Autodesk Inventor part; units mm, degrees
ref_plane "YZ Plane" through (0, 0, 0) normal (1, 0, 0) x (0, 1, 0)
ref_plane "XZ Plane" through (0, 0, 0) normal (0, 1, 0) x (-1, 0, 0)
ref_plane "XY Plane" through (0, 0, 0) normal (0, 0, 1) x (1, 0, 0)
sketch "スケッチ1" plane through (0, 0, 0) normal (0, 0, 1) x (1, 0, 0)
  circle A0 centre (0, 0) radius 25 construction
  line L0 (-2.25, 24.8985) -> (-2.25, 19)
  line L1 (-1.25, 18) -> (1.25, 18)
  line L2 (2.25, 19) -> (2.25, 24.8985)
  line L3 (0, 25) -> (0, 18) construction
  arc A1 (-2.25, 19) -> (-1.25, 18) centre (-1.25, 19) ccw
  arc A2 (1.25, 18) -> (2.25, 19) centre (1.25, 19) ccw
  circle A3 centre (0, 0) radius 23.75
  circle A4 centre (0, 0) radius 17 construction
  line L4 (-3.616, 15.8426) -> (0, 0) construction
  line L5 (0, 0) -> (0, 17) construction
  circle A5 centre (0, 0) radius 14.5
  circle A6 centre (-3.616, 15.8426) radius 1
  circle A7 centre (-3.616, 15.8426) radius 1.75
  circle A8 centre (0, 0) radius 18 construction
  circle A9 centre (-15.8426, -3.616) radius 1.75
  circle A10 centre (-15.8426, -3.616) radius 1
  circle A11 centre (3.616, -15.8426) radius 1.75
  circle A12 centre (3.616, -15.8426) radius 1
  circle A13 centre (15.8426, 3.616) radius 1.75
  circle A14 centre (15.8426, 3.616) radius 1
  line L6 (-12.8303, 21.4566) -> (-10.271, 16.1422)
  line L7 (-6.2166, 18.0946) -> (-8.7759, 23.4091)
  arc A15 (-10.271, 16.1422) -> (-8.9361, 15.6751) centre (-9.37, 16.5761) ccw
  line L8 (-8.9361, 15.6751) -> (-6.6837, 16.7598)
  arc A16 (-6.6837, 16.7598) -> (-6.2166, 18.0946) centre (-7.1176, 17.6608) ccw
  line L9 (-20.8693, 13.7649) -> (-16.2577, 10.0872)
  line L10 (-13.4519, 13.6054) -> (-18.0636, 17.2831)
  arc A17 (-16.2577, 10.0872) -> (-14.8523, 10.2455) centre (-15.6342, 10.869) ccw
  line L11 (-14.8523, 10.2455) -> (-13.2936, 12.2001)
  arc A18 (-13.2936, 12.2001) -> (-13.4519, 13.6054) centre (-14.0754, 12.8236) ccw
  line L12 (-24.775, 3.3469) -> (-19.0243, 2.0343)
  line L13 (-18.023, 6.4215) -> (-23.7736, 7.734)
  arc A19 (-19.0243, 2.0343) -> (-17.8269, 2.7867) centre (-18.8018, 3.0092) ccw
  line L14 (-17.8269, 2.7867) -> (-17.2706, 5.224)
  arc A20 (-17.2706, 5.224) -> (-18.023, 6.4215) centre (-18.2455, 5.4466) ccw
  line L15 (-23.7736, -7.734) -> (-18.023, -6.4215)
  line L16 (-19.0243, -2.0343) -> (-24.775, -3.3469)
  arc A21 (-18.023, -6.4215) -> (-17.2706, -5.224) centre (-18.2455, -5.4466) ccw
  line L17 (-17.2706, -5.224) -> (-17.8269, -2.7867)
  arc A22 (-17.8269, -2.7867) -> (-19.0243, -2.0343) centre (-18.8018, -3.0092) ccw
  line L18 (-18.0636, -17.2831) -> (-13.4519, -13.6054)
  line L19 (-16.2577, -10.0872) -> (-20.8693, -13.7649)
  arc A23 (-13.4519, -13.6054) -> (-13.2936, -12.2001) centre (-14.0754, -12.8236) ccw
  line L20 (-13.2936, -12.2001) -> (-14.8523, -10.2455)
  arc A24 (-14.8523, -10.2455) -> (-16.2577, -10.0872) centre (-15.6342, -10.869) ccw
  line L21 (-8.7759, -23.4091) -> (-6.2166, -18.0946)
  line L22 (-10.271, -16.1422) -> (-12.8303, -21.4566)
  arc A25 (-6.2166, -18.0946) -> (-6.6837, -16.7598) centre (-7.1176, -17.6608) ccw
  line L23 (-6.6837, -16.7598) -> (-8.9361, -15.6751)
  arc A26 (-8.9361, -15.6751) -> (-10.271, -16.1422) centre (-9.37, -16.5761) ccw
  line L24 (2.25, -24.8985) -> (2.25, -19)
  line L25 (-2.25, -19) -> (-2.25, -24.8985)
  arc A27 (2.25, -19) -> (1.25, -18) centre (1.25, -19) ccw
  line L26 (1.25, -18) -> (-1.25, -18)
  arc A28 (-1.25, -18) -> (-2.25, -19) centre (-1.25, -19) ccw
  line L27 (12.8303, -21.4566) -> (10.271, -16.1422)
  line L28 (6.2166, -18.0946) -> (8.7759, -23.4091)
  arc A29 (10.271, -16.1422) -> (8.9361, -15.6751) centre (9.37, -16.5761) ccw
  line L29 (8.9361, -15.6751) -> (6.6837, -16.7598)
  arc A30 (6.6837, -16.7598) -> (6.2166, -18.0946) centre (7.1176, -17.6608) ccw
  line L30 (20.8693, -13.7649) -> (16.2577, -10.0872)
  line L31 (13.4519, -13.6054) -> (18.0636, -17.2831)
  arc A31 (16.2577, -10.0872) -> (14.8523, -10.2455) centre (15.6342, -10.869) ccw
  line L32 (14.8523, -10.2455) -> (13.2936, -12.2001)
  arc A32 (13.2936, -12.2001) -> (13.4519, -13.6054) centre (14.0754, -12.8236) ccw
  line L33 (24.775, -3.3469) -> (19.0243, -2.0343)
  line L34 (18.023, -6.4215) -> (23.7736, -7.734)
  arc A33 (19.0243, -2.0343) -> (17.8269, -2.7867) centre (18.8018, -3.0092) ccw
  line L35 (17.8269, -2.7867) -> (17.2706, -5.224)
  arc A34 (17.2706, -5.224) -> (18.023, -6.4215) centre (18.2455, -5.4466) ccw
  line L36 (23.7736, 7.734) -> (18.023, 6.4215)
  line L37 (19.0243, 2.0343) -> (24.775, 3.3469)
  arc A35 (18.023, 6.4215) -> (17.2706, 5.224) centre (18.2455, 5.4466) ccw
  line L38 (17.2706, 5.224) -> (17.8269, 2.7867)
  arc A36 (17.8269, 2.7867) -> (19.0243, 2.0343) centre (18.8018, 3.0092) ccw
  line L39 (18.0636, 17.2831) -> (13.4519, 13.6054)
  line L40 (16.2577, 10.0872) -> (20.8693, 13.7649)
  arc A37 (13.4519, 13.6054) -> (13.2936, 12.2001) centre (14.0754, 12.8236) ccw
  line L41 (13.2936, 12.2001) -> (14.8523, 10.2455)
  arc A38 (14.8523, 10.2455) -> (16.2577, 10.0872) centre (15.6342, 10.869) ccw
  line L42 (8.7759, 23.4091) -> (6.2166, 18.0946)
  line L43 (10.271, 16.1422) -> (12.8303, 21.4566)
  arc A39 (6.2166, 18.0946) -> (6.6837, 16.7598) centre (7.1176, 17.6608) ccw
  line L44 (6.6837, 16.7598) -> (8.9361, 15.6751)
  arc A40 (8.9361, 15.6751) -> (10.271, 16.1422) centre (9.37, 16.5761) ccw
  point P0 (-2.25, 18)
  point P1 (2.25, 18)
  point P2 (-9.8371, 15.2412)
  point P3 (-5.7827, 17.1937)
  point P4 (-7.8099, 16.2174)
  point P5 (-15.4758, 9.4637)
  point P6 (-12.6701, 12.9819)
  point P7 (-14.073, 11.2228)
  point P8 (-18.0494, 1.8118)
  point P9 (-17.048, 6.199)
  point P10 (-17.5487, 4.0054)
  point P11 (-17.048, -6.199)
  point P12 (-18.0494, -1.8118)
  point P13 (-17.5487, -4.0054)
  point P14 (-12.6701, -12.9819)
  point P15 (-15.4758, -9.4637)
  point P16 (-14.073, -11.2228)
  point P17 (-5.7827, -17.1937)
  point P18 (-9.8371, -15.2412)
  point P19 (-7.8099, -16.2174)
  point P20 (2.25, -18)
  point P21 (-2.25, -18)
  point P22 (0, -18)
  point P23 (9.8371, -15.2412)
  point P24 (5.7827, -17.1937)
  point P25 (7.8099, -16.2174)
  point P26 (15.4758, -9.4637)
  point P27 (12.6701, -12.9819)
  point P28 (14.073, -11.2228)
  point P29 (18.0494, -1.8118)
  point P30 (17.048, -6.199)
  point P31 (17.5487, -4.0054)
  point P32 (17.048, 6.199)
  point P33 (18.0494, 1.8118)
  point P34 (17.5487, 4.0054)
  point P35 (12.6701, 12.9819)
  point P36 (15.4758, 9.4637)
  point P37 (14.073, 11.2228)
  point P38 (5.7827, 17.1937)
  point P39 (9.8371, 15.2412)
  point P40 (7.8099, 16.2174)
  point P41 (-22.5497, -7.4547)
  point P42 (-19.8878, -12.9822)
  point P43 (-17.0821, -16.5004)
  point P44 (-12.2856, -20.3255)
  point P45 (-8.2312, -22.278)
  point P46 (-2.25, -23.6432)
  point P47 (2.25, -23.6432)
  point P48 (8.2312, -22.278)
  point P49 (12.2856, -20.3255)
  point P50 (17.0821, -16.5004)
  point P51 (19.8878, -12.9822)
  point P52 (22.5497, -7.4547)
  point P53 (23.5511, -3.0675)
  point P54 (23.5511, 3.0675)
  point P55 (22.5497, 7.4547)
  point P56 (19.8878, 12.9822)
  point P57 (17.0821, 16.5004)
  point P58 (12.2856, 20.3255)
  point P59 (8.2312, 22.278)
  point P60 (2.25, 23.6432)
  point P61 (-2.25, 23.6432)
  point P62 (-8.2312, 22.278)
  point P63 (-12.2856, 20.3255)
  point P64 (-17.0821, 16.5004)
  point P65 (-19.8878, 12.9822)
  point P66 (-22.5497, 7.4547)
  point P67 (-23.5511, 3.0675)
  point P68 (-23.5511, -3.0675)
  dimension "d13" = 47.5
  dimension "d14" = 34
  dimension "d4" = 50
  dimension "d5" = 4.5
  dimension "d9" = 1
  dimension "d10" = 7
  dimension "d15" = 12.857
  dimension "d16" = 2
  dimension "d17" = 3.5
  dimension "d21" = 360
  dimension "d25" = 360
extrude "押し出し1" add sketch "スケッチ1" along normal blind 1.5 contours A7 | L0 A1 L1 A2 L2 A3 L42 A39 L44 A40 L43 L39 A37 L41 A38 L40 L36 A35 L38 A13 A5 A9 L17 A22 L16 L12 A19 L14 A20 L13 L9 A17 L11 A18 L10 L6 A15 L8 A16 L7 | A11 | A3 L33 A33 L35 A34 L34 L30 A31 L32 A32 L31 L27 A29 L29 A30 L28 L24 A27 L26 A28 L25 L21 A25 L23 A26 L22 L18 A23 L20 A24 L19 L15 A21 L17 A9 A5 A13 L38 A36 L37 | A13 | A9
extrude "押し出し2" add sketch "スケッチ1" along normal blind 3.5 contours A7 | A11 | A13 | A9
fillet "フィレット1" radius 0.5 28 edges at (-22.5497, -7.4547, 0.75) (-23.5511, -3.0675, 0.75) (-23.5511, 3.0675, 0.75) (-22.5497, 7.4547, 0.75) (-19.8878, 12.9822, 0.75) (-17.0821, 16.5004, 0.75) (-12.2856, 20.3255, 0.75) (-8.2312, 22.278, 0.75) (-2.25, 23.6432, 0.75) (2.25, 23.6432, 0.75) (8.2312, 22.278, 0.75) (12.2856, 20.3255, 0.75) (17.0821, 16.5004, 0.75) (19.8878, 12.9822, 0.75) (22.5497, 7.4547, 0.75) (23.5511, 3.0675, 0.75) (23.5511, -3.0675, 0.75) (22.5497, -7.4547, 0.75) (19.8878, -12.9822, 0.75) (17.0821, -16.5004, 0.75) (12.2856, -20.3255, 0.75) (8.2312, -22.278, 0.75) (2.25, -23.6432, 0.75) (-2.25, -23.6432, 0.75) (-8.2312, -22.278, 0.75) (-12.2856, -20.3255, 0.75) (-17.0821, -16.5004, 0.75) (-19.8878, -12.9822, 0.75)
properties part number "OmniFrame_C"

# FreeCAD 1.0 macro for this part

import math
import FreeCAD as App
import Part
import Sketcher
Q = App.Units.Quantity


def edges_at(feature, points):
    """Names of the edges that pass closest to the given points."""
    edges = feature.Shape.Edges
    near = lambda p: min(range(len(edges)), key=lambda i: edges[i].distToShape(Part.Vertex(*p))[0])
    return sorted({f"Edge{near(p) + 1}" for p in points})

doc = App.newDocument("Part")
body = doc.addObject("PartDesign::Body", "Body")

sketch1 = doc.addObject("Sketcher::SketchObject", "Sketch")
body.addObject(sketch1)
sketch1.AttachmentSupport = (doc.XY_Plane, [""])
sketch1.MapMode = "FlatFace"
sketch1.addGeometry([
    Part.LineSegment(App.Vector(-2.2, 19, 0), App.Vector(-2.2, 23.6, 0)),
    Part.ArcOfCircle(Part.Circle(App.Vector(0, 0, 0), App.Vector(0, 0, 1), 23.8), math.radians(95.44), math.radians(110.28)),
    Part.LineSegment(App.Vector(-8.2, 22.3, 0), App.Vector(-6.2, 18.1, 0)),
    Part.ArcOfCircle(Part.Circle(App.Vector(-7.1, 17.7, 0), App.Vector(0, 0, 1), 1), math.radians(-64), math.radians(26)),
    Part.LineSegment(App.Vector(-6.7, 16.8, 0), App.Vector(-8.9, 15.7, 0)),
    Part.ArcOfCircle(Part.Circle(App.Vector(-9.4, 16.6, 0), App.Vector(0, 0, 1), 1), math.radians(-154), math.radians(-64)),
    Part.LineSegment(App.Vector(-10.3, 16.1, 0), App.Vector(-12.3, 20.3, 0)),
    Part.ArcOfCircle(Part.Circle(App.Vector(0, 0, 0), App.Vector(0, 0, 1), 23.8), math.radians(121.15), math.radians(135.99)),
    Part.LineSegment(App.Vector(-17.1, 16.5, 0), App.Vector(-13.5, 13.6, 0)),
    Part.ArcOfCircle(Part.Circle(App.Vector(-14.1, 12.8, 0), App.Vector(0, 0, 1), 1), math.radians(-39), math.radians(51)),
    Part.LineSegment(App.Vector(-13.3, 12.2, 0), App.Vector(-14.9, 10.2, 0)),
    Part.ArcOfCircle(Part.Circle(App.Vector(-15.6, 10.9, 0), App.Vector(0, 0, 1), 1), math.radians(-129), math.radians(-39)),
    Part.LineSegment(App.Vector(-16.3, 10.1, 0), App.Vector(-19.9, 13, 0)),
    Part.ArcOfCircle(Part.Circle(App.Vector(0, 0, 0), App.Vector(0, 0, 1), 23.8), math.radians(146.86), math.radians(161.71)),
    Part.LineSegment(App.Vector(-22.5, 7.5, 0), App.Vector(-18, 6.4, 0)),
    Part.ArcOfCircle(Part.Circle(App.Vector(-18.2, 5.4, 0), App.Vector(0, 0, 1), 1), math.radians(-13), math.radians(77)),
    Part.LineSegment(App.Vector(-17.3, 5.2, 0), App.Vector(-17.8, 2.8, 0)),
    Part.ArcOfCircle(Part.Circle(App.Vector(-18.8, 3, 0), App.Vector(0, 0, 1), 1), math.radians(-103), math.radians(-13)),
    Part.LineSegment(App.Vector(-19, 2, 0), App.Vector(-23.6, 3.1, 0)),
    Part.ArcOfCircle(Part.Circle(App.Vector(0, 0, 0), App.Vector(0, 0, 1), 23.8), math.radians(172.58), math.radians(187.42)),
    Part.LineSegment(App.Vector(-23.6, -3.1, 0), App.Vector(-19, -2, 0)),
    Part.ArcOfCircle(Part.Circle(App.Vector(-18.8, -3, 0), App.Vector(0, 0, 1), 1), math.radians(13), math.radians(103)),
    Part.LineSegment(App.Vector(-17.8, -2.8, 0), App.Vector(-17.3, -5.2, 0)),
    Part.ArcOfCircle(Part.Circle(App.Vector(-18.2, -5.4, 0), App.Vector(0, 0, 1), 1), math.radians(-77), math.radians(13)),
    Part.LineSegment(App.Vector(-18, -6.4, 0), App.Vector(-22.5, -7.5, 0)),
    Part.ArcOfCircle(Part.Circle(App.Vector(0, 0, 0), App.Vector(0, 0, 1), 23.8), math.radians(-161.71), math.radians(-146.86)),
    Part.LineSegment(App.Vector(-19.9, -13, 0), App.Vector(-16.3, -10.1, 0)),
    Part.ArcOfCircle(Part.Circle(App.Vector(-15.6, -10.9, 0), App.Vector(0, 0, 1), 1), math.radians(39), math.radians(129)),
    Part.LineSegment(App.Vector(-14.9, -10.2, 0), App.Vector(-13.3, -12.2, 0)),
    Part.ArcOfCircle(Part.Circle(App.Vector(-14.1, -12.8, 0), App.Vector(0, 0, 1), 1), math.radians(-51), math.radians(39)),
    Part.LineSegment(App.Vector(-13.5, -13.6, 0), App.Vector(-17.1, -16.5, 0)),
    Part.ArcOfCircle(Part.Circle(App.Vector(0, 0, 0), App.Vector(0, 0, 1), 23.8), math.radians(-135.99), math.radians(-121.15)),
    Part.LineSegment(App.Vector(-12.3, -20.3, 0), App.Vector(-10.3, -16.1, 0)),
    Part.ArcOfCircle(Part.Circle(App.Vector(-9.4, -16.6, 0), App.Vector(0, 0, 1), 1), math.radians(64), math.radians(154)),
    Part.LineSegment(App.Vector(-8.9, -15.7, 0), App.Vector(-6.7, -16.8, 0)),
    Part.ArcOfCircle(Part.Circle(App.Vector(-7.1, -17.7, 0), App.Vector(0, 0, 1), 1), math.radians(-26), math.radians(64)),
    Part.LineSegment(App.Vector(-6.2, -18.1, 0), App.Vector(-8.2, -22.3, 0)),
    Part.ArcOfCircle(Part.Circle(App.Vector(0, 0, 0), App.Vector(0, 0, 1), 23.8), math.radians(-110.28), math.radians(-95.44)),
    Part.LineSegment(App.Vector(-2.2, -23.6, 0), App.Vector(-2.2, -19, 0)),
    Part.ArcOfCircle(Part.Circle(App.Vector(-1.2, -19, 0), App.Vector(0, 0, 1), 1), math.radians(90), math.radians(180)),
    Part.LineSegment(App.Vector(-1.2, -18, 0), App.Vector(1.2, -18, 0)),
    Part.ArcOfCircle(Part.Circle(App.Vector(1.2, -19, 0), App.Vector(0, 0, 1), 1), math.radians(0), math.radians(90)),
    Part.LineSegment(App.Vector(2.2, -19, 0), App.Vector(2.2, -23.6, 0)),
    Part.ArcOfCircle(Part.Circle(App.Vector(0, 0, 0), App.Vector(0, 0, 1), 23.8), math.radians(-84.56), math.radians(-69.72)),
    Part.LineSegment(App.Vector(8.2, -22.3, 0), App.Vector(6.2, -18.1, 0)),
    Part.ArcOfCircle(Part.Circle(App.Vector(7.1, -17.7, 0), App.Vector(0, 0, 1), 1), math.radians(116), math.radians(206)),
    Part.LineSegment(App.Vector(6.7, -16.8, 0), App.Vector(8.9, -15.7, 0)),
    Part.ArcOfCircle(Part.Circle(App.Vector(9.4, -16.6, 0), App.Vector(0, 0, 1), 1), math.radians(26), math.radians(116)),
    Part.LineSegment(App.Vector(10.3, -16.1, 0), App.Vector(12.3, -20.3, 0)),
    Part.ArcOfCircle(Part.Circle(App.Vector(0, 0, 0), App.Vector(0, 0, 1), 23.8), math.radians(-58.85), math.radians(-44.01)),
    Part.LineSegment(App.Vector(17.1, -16.5, 0), App.Vector(13.5, -13.6, 0)),
    Part.ArcOfCircle(Part.Circle(App.Vector(14.1, -12.8, 0), App.Vector(0, 0, 1), 1), math.radians(141), math.radians(231)),
    Part.LineSegment(App.Vector(13.3, -12.2, 0), App.Vector(14.9, -10.2, 0)),
    Part.ArcOfCircle(Part.Circle(App.Vector(15.6, -10.9, 0), App.Vector(0, 0, 1), 1), math.radians(51), math.radians(141)),
    Part.LineSegment(App.Vector(16.3, -10.1, 0), App.Vector(19.9, -13, 0)),
    Part.ArcOfCircle(Part.Circle(App.Vector(0, 0, 0), App.Vector(0, 0, 1), 23.8), math.radians(-33.14), math.radians(-18.29)),
    Part.LineSegment(App.Vector(22.5, -7.5, 0), App.Vector(18, -6.4, 0)),
    Part.ArcOfCircle(Part.Circle(App.Vector(18.2, -5.4, 0), App.Vector(0, 0, 1), 1), math.radians(167), math.radians(257)),
    Part.LineSegment(App.Vector(17.3, -5.2, 0), App.Vector(17.8, -2.8, 0)),
    Part.ArcOfCircle(Part.Circle(App.Vector(18.8, -3, 0), App.Vector(0, 0, 1), 1), math.radians(77), math.radians(167)),
    Part.LineSegment(App.Vector(19, -2, 0), App.Vector(23.6, -3.1, 0)),
    Part.ArcOfCircle(Part.Circle(App.Vector(0, 0, 0), App.Vector(0, 0, 1), 23.8), math.radians(-7.42), math.radians(7.42)),
    Part.LineSegment(App.Vector(23.6, 3.1, 0), App.Vector(19, 2, 0)),
    Part.ArcOfCircle(Part.Circle(App.Vector(18.8, 3, 0), App.Vector(0, 0, 1), 1), math.radians(-167), math.radians(-77)),
    Part.LineSegment(App.Vector(17.8, 2.8, 0), App.Vector(17.3, 5.2, 0)),
    Part.ArcOfCircle(Part.Circle(App.Vector(18.2, 5.4, 0), App.Vector(0, 0, 1), 1), math.radians(103), math.radians(193)),
    Part.LineSegment(App.Vector(18, 6.4, 0), App.Vector(22.5, 7.5, 0)),
    Part.ArcOfCircle(Part.Circle(App.Vector(0, 0, 0), App.Vector(0, 0, 1), 23.8), math.radians(18.29), math.radians(33.14)),
    Part.LineSegment(App.Vector(19.9, 13, 0), App.Vector(16.3, 10.1, 0)),
    Part.ArcOfCircle(Part.Circle(App.Vector(15.6, 10.9, 0), App.Vector(0, 0, 1), 1), math.radians(-141), math.radians(-51)),
    Part.LineSegment(App.Vector(14.9, 10.2, 0), App.Vector(13.3, 12.2, 0)),
    Part.ArcOfCircle(Part.Circle(App.Vector(14.1, 12.8, 0), App.Vector(0, 0, 1), 1), math.radians(129), math.radians(219)),
    Part.LineSegment(App.Vector(13.5, 13.6, 0), App.Vector(17.1, 16.5, 0)),
    Part.ArcOfCircle(Part.Circle(App.Vector(0, 0, 0), App.Vector(0, 0, 1), 23.8), math.radians(44.01), math.radians(58.85)),
    Part.LineSegment(App.Vector(12.3, 20.3, 0), App.Vector(10.3, 16.1, 0)),
    Part.ArcOfCircle(Part.Circle(App.Vector(9.4, 16.6, 0), App.Vector(0, 0, 1), 1), math.radians(-116), math.radians(-26)),
    Part.LineSegment(App.Vector(8.9, 15.7, 0), App.Vector(6.7, 16.8, 0)),
    Part.ArcOfCircle(Part.Circle(App.Vector(7.1, 17.7, 0), App.Vector(0, 0, 1), 1), math.radians(154), math.radians(244)),
    Part.LineSegment(App.Vector(6.2, 18.1, 0), App.Vector(8.2, 22.3, 0)),
    Part.ArcOfCircle(Part.Circle(App.Vector(0, 0, 0), App.Vector(0, 0, 1), 23.8), math.radians(69.72), math.radians(84.56)),
    Part.LineSegment(App.Vector(2.2, 23.6, 0), App.Vector(2.2, 19, 0)),
    Part.ArcOfCircle(Part.Circle(App.Vector(1.2, 19, 0), App.Vector(0, 0, 1), 1), math.radians(-90), math.radians(0)),
    Part.LineSegment(App.Vector(1.2, 18, 0), App.Vector(-1.2, 18, 0)),
    Part.ArcOfCircle(Part.Circle(App.Vector(-1.2, 19, 0), App.Vector(0, 0, 1), 1), math.radians(180), math.radians(270)),
    Part.Circle(App.Vector(-3.6, 15.8, 0), App.Vector(0, 0, 1), 1),
    Part.Circle(App.Vector(0, 0, 0), App.Vector(0, 0, 1), 14.5),
    Part.Circle(App.Vector(15.8, 3.6, 0), App.Vector(0, 0, 1), 1),
    Part.Circle(App.Vector(-15.8, -3.6, 0), App.Vector(0, 0, 1), 1),
    Part.Circle(App.Vector(3.6, -15.8, 0), App.Vector(0, 0, 1), 1),
], False)
sketch1.addConstraint([
    Sketcher.Constraint("Coincident", 0, 2, 1, 1),
    Sketcher.Constraint("Coincident", 1, 2, 2, 1),
    Sketcher.Constraint("Tangent", 2, 2, 3, 2),
    Sketcher.Constraint("Tangent", 3, 1, 4, 1),
    Sketcher.Constraint("Tangent", 4, 2, 5, 2),
    Sketcher.Constraint("Tangent", 5, 1, 6, 1),
    Sketcher.Constraint("Coincident", 6, 2, 7, 1),
    Sketcher.Constraint("Coincident", 7, 2, 8, 1),
    Sketcher.Constraint("Tangent", 8, 2, 9, 2),
    Sketcher.Constraint("Tangent", 9, 1, 10, 1),
    Sketcher.Constraint("Tangent", 10, 2, 11, 2),
    Sketcher.Constraint("Tangent", 11, 1, 12, 1),
    Sketcher.Constraint("Coincident", 12, 2, 13, 1),
    Sketcher.Constraint("Coincident", 13, 2, 14, 1),
    Sketcher.Constraint("Tangent", 14, 2, 15, 2),
    Sketcher.Constraint("Tangent", 15, 1, 16, 1),
    Sketcher.Constraint("Tangent", 16, 2, 17, 2),
    Sketcher.Constraint("Tangent", 17, 1, 18, 1),
    Sketcher.Constraint("Coincident", 18, 2, 19, 1),
    Sketcher.Constraint("Coincident", 19, 2, 20, 1),
    Sketcher.Constraint("Tangent", 20, 2, 21, 2),
    Sketcher.Constraint("Tangent", 21, 1, 22, 1),
    Sketcher.Constraint("Tangent", 22, 2, 23, 2),
    Sketcher.Constraint("Tangent", 23, 1, 24, 1),
    Sketcher.Constraint("Coincident", 24, 2, 25, 1),
    Sketcher.Constraint("Coincident", 25, 2, 26, 1),
    Sketcher.Constraint("Tangent", 26, 2, 27, 2),
    Sketcher.Constraint("Tangent", 27, 1, 28, 1),
    Sketcher.Constraint("Tangent", 28, 2, 29, 2),
    Sketcher.Constraint("Tangent", 29, 1, 30, 1),
    Sketcher.Constraint("Coincident", 30, 2, 31, 1),
    Sketcher.Constraint("Coincident", 31, 2, 32, 1),
    Sketcher.Constraint("Tangent", 32, 2, 33, 2),
    Sketcher.Constraint("Tangent", 33, 1, 34, 1),
    Sketcher.Constraint("Tangent", 34, 2, 35, 2),
    Sketcher.Constraint("Tangent", 35, 1, 36, 1),
    Sketcher.Constraint("Coincident", 36, 2, 37, 1),
    Sketcher.Constraint("Coincident", 37, 2, 38, 1),
    Sketcher.Constraint("Tangent", 38, 2, 39, 2),
    Sketcher.Constraint("Tangent", 39, 1, 40, 1),
    Sketcher.Constraint("Tangent", 40, 2, 41, 2),
    Sketcher.Constraint("Tangent", 41, 1, 42, 1),
    Sketcher.Constraint("Coincident", 42, 2, 43, 1),
    Sketcher.Constraint("Coincident", 43, 2, 44, 1),
    Sketcher.Constraint("Tangent", 44, 2, 45, 2),
    Sketcher.Constraint("Tangent", 45, 1, 46, 1),
    Sketcher.Constraint("Tangent", 46, 2, 47, 2),
    Sketcher.Constraint("Tangent", 47, 1, 48, 1),
    Sketcher.Constraint("Coincident", 48, 2, 49, 1),
    Sketcher.Constraint("Coincident", 49, 2, 50, 1),
    Sketcher.Constraint("Tangent", 50, 2, 51, 2),
    Sketcher.Constraint("Tangent", 51, 1, 52, 1),
    Sketcher.Constraint("Tangent", 52, 2, 53, 2),
    Sketcher.Constraint("Tangent", 53, 1, 54, 1),
    Sketcher.Constraint("Coincident", 54, 2, 55, 1),
    Sketcher.Constraint("Coincident", 55, 2, 56, 1),
    Sketcher.Constraint("Tangent", 56, 2, 57, 2),
    Sketcher.Constraint("Tangent", 57, 1, 58, 1),
    Sketcher.Constraint("Tangent", 58, 2, 59, 2),
    Sketcher.Constraint("Tangent", 59, 1, 60, 1),
    Sketcher.Constraint("Coincident", 60, 2, 61, 1),
    Sketcher.Constraint("Coincident", 61, 2, 62, 1),
    Sketcher.Constraint("Tangent", 62, 2, 63, 2),
    Sketcher.Constraint("Tangent", 63, 1, 64, 1),
    Sketcher.Constraint("Tangent", 64, 2, 65, 2),
    Sketcher.Constraint("Tangent", 65, 1, 66, 1),
    Sketcher.Constraint("Coincident", 66, 2, 67, 1),
    Sketcher.Constraint("Coincident", 67, 2, 68, 1),
    Sketcher.Constraint("Tangent", 68, 2, 69, 2),
    Sketcher.Constraint("Tangent", 69, 1, 70, 1),
    Sketcher.Constraint("Tangent", 70, 2, 71, 2),
    Sketcher.Constraint("Tangent", 71, 1, 72, 1),
    Sketcher.Constraint("Coincident", 72, 2, 73, 1),
    Sketcher.Constraint("Coincident", 73, 2, 74, 1),
    Sketcher.Constraint("Tangent", 74, 2, 75, 2),
    Sketcher.Constraint("Tangent", 75, 1, 76, 1),
    Sketcher.Constraint("Tangent", 76, 2, 77, 2),
    Sketcher.Constraint("Tangent", 77, 1, 78, 1),
    Sketcher.Constraint("Coincident", 78, 2, 79, 1),
    Sketcher.Constraint("Coincident", 79, 2, 80, 1),
    Sketcher.Constraint("Tangent", 80, 2, 81, 2),
    Sketcher.Constraint("Tangent", 81, 1, 82, 1),
    Sketcher.Constraint("Tangent", 82, 2, 83, 2),
    Sketcher.Constraint("Tangent", 83, 1, 0, 1),
    Sketcher.Constraint("Vertical", 0),
    Sketcher.Constraint("Vertical", 38),
    Sketcher.Constraint("Horizontal", 40),
    Sketcher.Constraint("Vertical", 42),
    Sketcher.Constraint("Vertical", 80),
    Sketcher.Constraint("Horizontal", 82),
    Sketcher.Constraint("Coincident", 1, 3, -1, 1),
    Sketcher.Constraint("Coincident", 7, 3, -1, 1),
    Sketcher.Constraint("Coincident", 13, 3, -1, 1),
    Sketcher.Constraint("Coincident", 19, 3, -1, 1),
    Sketcher.Constraint("Coincident", 25, 3, -1, 1),
    Sketcher.Constraint("Coincident", 31, 3, -1, 1),
    Sketcher.Constraint("Coincident", 37, 3, -1, 1),
    Sketcher.Constraint("Coincident", 43, 3, -1, 1),
    Sketcher.Constraint("Coincident", 49, 3, -1, 1),
    Sketcher.Constraint("Coincident", 55, 3, -1, 1),
    Sketcher.Constraint("Coincident", 61, 3, -1, 1),
    Sketcher.Constraint("Coincident", 67, 3, -1, 1),
    Sketcher.Constraint("Coincident", 73, 3, -1, 1),
    Sketcher.Constraint("Coincident", 79, 3, -1, 1),
    Sketcher.Constraint("Coincident", 85, 3, -1, 1),
    Sketcher.Constraint("Equal", 3, 5),
    Sketcher.Constraint("Equal", 1, 7),
    Sketcher.Constraint("Equal", 5, 9),
    Sketcher.Constraint("Equal", 9, 11),
    Sketcher.Constraint("Equal", 7, 13),
    Sketcher.Constraint("Equal", 11, 15),
    Sketcher.Constraint("Equal", 15, 17),
    Sketcher.Constraint("Equal", 13, 19),
    Sketcher.Constraint("Equal", 17, 21),
    Sketcher.Constraint("Equal", 21, 23),
    Sketcher.Constraint("Equal", 19, 25),
    Sketcher.Constraint("Equal", 23, 27),
    Sketcher.Constraint("Equal", 27, 29),
    Sketcher.Constraint("Equal", 25, 31),
    Sketcher.Constraint("Equal", 29, 33),
    Sketcher.Constraint("Equal", 33, 35),
    Sketcher.Constraint("Equal", 31, 37),
    Sketcher.Constraint("Equal", 35, 39),
    Sketcher.Constraint("Equal", 39, 41),
    Sketcher.Constraint("Equal", 37, 43),
    Sketcher.Constraint("Equal", 41, 45),
    Sketcher.Constraint("Equal", 45, 47),
    Sketcher.Constraint("Equal", 43, 49),
    Sketcher.Constraint("Equal", 47, 51),
    Sketcher.Constraint("Equal", 51, 53),
    Sketcher.Constraint("Equal", 49, 55),
    Sketcher.Constraint("Equal", 53, 57),
    Sketcher.Constraint("Equal", 57, 59),
    Sketcher.Constraint("Equal", 55, 61),
    Sketcher.Constraint("Equal", 59, 63),
    Sketcher.Constraint("Equal", 63, 65),
    Sketcher.Constraint("Equal", 61, 67),
    Sketcher.Constraint("Equal", 65, 69),
    Sketcher.Constraint("Equal", 69, 71),
    Sketcher.Constraint("Equal", 67, 73),
    Sketcher.Constraint("Equal", 71, 75),
    Sketcher.Constraint("Equal", 75, 77),
    Sketcher.Constraint("Equal", 73, 79),
    Sketcher.Constraint("Equal", 77, 81),
    Sketcher.Constraint("Equal", 81, 83),
    Sketcher.Constraint("Equal", 83, 84),
    Sketcher.Constraint("Equal", 84, 86),
    Sketcher.Constraint("Equal", 86, 87),
    Sketcher.Constraint("Equal", 87, 88),
    Sketcher.Constraint("Symmetric", 3, 3, 45, 3, -1, 1),
    Sketcher.Constraint("Symmetric", 5, 3, 47, 3, -1, 1),
    Sketcher.Constraint("Symmetric", 9, 3, 51, 3, -1, 1),
    Sketcher.Constraint("Symmetric", 11, 3, 53, 3, -1, 1),
    Sketcher.Constraint("Symmetric", 15, 3, 57, 3, -1, 1),
    Sketcher.Constraint("Symmetric", 17, 3, 59, 3, -1, 1),
    Sketcher.Constraint("Symmetric", 21, 3, 63, 3, -1, 1),
    Sketcher.Constraint("Symmetric", 23, 3, 65, 3, -1, 1),
    Sketcher.Constraint("Symmetric", 27, 3, 69, 3, -1, 1),
    Sketcher.Constraint("Symmetric", 29, 3, 71, 3, -1, 1),
    Sketcher.Constraint("Symmetric", 33, 3, 75, 3, -1, 1),
    Sketcher.Constraint("Symmetric", 35, 3, 77, 3, -1, 1),
    Sketcher.Constraint("Symmetric", 39, 3, 81, 3, -1, 1),
    Sketcher.Constraint("Symmetric", 86, 3, 87, 3, -1, 1),
    Sketcher.Constraint("Symmetric", 84, 3, 88, 3, -1, 1),
    Sketcher.Constraint("Symmetric", 35, 3, 45, 3, -2),
    Sketcher.Constraint("Symmetric", 33, 3, 47, 3, -2),
    Sketcher.Constraint("Symmetric", 29, 3, 51, 3, -2),
    Sketcher.Constraint("Symmetric", 27, 3, 53, 3, -2),
    Sketcher.Constraint("Symmetric", 23, 3, 57, 3, -2),
    Sketcher.Constraint("Symmetric", 21, 3, 59, 3, -2),
    Sketcher.Constraint("Perpendicular", 2, 4),
    Sketcher.Constraint("Perpendicular", 4, 6),
    Sketcher.Constraint("Perpendicular", 8, 10),
    Sketcher.Constraint("Perpendicular", 10, 12),
    Sketcher.Constraint("Perpendicular", 14, 16),
    Sketcher.Constraint("Perpendicular", 16, 18),
    Sketcher.Constraint("Perpendicular", 20, 22),
    Sketcher.Constraint("Perpendicular", 22, 24),
    Sketcher.Constraint("Perpendicular", 26, 28),
    Sketcher.Constraint("Perpendicular", 28, 30),
    Sketcher.Constraint("Perpendicular", 32, 34),
    Sketcher.Constraint("Perpendicular", 34, 36),
    Sketcher.Constraint("Parallel", 6, 44),
    Sketcher.Constraint("Perpendicular", 46, 48),
    Sketcher.Constraint("Parallel", 12, 50),
    Sketcher.Constraint("Perpendicular", 52, 54),
    Sketcher.Constraint("Parallel", 18, 56),
    Sketcher.Constraint("Perpendicular", 58, 60),
    Sketcher.Constraint("Parallel", 24, 62),
    Sketcher.Constraint("Perpendicular", 64, 66),
    Sketcher.Constraint("Parallel", 30, 68),
    Sketcher.Constraint("Perpendicular", 70, 72),
    Sketcher.Constraint("Parallel", 36, 74),
    Sketcher.Constraint("Perpendicular", 76, 78),
    Sketcher.Constraint("Horizontal", 37, 2, 42, 2),
    Sketcher.Constraint("Horizontal", 0, 2, 79, 2),
    Sketcher.Constraint("Equal", 2, 6),
    Sketcher.Constraint("Equal", 6, 8),
    Sketcher.Constraint("Equal", 4, 10),
    Sketcher.Constraint("Equal", 8, 12),
    Sketcher.Constraint("Equal", 12, 14),
    Sketcher.Constraint("Equal", 10, 16),
    Sketcher.Constraint("Equal", 14, 18),
    Sketcher.Constraint("Diameter", 84, 2.0),
    Sketcher.Constraint("Radius", 1, 23.75),
    Sketcher.Constraint("Diameter", 85, 29.0),
    Sketcher.Constraint("DistanceX", 40, 1, 40, 2, 2.5),
    Sketcher.Constraint("DistanceY", 39, 3, -1, 1, 19.0),
    Sketcher.Constraint("Distance", 4, 2.5),
    Sketcher.Constraint("DistanceY", -1, 1, 9, 1, 12.2),
    Sketcher.Constraint("Angle", 10, Q("-128.5707 deg")),
    Sketcher.Constraint("DistanceX", 5, 3, -1, 1, 9.37),
    Sketcher.Constraint("DistanceX", 84, 3, -1, 1, 3.616),
    Sketcher.Constraint("DistanceY", -1, 1, 86, 3, 3.616),
    Sketcher.Constraint("DistanceX", 14, 2, -1, 1, 18.023),
    Sketcher.Constraint("DistanceY", -1, 1, 84, 3, 15.8426),
    Sketcher.Constraint("DistanceX", -1, 1, 86, 3, 15.8426),
])
pad1 = doc.addObject("PartDesign::Pad", "Pad")
body.addObject(pad1)
pad1.Profile = sketch1
pad1.Length = 1.5

sketch2 = doc.addObject("Sketcher::SketchObject", "Sketch001")
body.addObject(sketch2)
sketch2.AttachmentSupport = (doc.XY_Plane, [""])
sketch2.MapMode = "FlatFace"
sketch2.addGeometry([
    Part.Circle(App.Vector(-3.6, 15.8, 0), App.Vector(0, 0, 1), 1.8),
    Part.Circle(App.Vector(-3.6, 15.8, 0), App.Vector(0, 0, 1), 1),
    Part.Circle(App.Vector(3.6, -15.8, 0), App.Vector(0, 0, 1), 1.8),
    Part.Circle(App.Vector(3.6, -15.8, 0), App.Vector(0, 0, 1), 1),
    Part.Circle(App.Vector(15.8, 3.6, 0), App.Vector(0, 0, 1), 1.8),
    Part.Circle(App.Vector(15.8, 3.6, 0), App.Vector(0, 0, 1), 1),
    Part.Circle(App.Vector(-15.8, -3.6, 0), App.Vector(0, 0, 1), 1.8),
    Part.Circle(App.Vector(-15.8, -3.6, 0), App.Vector(0, 0, 1), 1),
], False)
sketch2.addConstraint([
    Sketcher.Constraint("Coincident", 1, 3, 0, 3),
    Sketcher.Constraint("Coincident", 3, 3, 2, 3),
    Sketcher.Constraint("Coincident", 5, 3, 4, 3),
    Sketcher.Constraint("Coincident", 7, 3, 6, 3),
    Sketcher.Constraint("Equal", 0, 2),
    Sketcher.Constraint("Equal", 1, 3),
    Sketcher.Constraint("Equal", 2, 4),
    Sketcher.Constraint("Equal", 3, 5),
    Sketcher.Constraint("Equal", 4, 6),
    Sketcher.Constraint("Equal", 5, 7),
    Sketcher.Constraint("Symmetric", 0, 3, 2, 3, -1, 1),
    Sketcher.Constraint("Symmetric", 4, 3, 6, 3, -1, 1),
    Sketcher.Constraint("Diameter", 1, 2.0),
    Sketcher.Constraint("Diameter", 0, 3.5),
    Sketcher.Constraint("DistanceX", 0, 3, -1, 1, 3.616),
    Sketcher.Constraint("DistanceY", -1, 1, 4, 3, 3.616),
    Sketcher.Constraint("DistanceY", -1, 1, 0, 3, 15.8426),
    Sketcher.Constraint("DistanceX", -1, 1, 4, 3, 15.8426),
])
pad2 = doc.addObject("PartDesign::Pad", "Pad001")
body.addObject(pad2)
pad2.Profile = sketch2
pad2.Length = 3.5
doc.recompute()

fillet = doc.addObject("PartDesign::Fillet", "Fillet")
body.addObject(fillet)
fillet.Base = (pad2, edges_at(pad2, [
    (-22.55, -7.455, 0.75),
    (-23.551, -3.067, 0.75),
    (-23.551, 3.067, 0.75),
    (-22.55, 7.455, 0.75),
    (-19.888, 12.982, 0.75),
    (-17.082, 16.5, 0.75),
    (-12.286, 20.326, 0.75),
    (-8.231, 22.278, 0.75),
    (-2.25, 23.643, 0.75),
    (2.25, 23.643, 0.75),
    (8.231, 22.278, 0.75),
    (12.286, 20.326, 0.75),
    (17.082, 16.5, 0.75),
    (19.888, 12.982, 0.75),
    (22.55, 7.455, 0.75),
    (23.551, 3.067, 0.75),
    (23.551, -3.067, 0.75),
    (22.55, -7.455, 0.75),
    (19.888, -12.982, 0.75),
    (17.082, -16.5, 0.75),
    (12.286, -20.326, 0.75),
    (8.231, -22.278, 0.75),
    (2.25, -23.643, 0.75),
    (-2.25, -23.643, 0.75),
    (-8.231, -22.278, 0.75),
    (-12.286, -20.326, 0.75),
    (-17.082, -16.5, 0.75),
    (-19.888, -12.982, 0.75),
]))
fillet.Radius = 0.5

doc.recompute()
